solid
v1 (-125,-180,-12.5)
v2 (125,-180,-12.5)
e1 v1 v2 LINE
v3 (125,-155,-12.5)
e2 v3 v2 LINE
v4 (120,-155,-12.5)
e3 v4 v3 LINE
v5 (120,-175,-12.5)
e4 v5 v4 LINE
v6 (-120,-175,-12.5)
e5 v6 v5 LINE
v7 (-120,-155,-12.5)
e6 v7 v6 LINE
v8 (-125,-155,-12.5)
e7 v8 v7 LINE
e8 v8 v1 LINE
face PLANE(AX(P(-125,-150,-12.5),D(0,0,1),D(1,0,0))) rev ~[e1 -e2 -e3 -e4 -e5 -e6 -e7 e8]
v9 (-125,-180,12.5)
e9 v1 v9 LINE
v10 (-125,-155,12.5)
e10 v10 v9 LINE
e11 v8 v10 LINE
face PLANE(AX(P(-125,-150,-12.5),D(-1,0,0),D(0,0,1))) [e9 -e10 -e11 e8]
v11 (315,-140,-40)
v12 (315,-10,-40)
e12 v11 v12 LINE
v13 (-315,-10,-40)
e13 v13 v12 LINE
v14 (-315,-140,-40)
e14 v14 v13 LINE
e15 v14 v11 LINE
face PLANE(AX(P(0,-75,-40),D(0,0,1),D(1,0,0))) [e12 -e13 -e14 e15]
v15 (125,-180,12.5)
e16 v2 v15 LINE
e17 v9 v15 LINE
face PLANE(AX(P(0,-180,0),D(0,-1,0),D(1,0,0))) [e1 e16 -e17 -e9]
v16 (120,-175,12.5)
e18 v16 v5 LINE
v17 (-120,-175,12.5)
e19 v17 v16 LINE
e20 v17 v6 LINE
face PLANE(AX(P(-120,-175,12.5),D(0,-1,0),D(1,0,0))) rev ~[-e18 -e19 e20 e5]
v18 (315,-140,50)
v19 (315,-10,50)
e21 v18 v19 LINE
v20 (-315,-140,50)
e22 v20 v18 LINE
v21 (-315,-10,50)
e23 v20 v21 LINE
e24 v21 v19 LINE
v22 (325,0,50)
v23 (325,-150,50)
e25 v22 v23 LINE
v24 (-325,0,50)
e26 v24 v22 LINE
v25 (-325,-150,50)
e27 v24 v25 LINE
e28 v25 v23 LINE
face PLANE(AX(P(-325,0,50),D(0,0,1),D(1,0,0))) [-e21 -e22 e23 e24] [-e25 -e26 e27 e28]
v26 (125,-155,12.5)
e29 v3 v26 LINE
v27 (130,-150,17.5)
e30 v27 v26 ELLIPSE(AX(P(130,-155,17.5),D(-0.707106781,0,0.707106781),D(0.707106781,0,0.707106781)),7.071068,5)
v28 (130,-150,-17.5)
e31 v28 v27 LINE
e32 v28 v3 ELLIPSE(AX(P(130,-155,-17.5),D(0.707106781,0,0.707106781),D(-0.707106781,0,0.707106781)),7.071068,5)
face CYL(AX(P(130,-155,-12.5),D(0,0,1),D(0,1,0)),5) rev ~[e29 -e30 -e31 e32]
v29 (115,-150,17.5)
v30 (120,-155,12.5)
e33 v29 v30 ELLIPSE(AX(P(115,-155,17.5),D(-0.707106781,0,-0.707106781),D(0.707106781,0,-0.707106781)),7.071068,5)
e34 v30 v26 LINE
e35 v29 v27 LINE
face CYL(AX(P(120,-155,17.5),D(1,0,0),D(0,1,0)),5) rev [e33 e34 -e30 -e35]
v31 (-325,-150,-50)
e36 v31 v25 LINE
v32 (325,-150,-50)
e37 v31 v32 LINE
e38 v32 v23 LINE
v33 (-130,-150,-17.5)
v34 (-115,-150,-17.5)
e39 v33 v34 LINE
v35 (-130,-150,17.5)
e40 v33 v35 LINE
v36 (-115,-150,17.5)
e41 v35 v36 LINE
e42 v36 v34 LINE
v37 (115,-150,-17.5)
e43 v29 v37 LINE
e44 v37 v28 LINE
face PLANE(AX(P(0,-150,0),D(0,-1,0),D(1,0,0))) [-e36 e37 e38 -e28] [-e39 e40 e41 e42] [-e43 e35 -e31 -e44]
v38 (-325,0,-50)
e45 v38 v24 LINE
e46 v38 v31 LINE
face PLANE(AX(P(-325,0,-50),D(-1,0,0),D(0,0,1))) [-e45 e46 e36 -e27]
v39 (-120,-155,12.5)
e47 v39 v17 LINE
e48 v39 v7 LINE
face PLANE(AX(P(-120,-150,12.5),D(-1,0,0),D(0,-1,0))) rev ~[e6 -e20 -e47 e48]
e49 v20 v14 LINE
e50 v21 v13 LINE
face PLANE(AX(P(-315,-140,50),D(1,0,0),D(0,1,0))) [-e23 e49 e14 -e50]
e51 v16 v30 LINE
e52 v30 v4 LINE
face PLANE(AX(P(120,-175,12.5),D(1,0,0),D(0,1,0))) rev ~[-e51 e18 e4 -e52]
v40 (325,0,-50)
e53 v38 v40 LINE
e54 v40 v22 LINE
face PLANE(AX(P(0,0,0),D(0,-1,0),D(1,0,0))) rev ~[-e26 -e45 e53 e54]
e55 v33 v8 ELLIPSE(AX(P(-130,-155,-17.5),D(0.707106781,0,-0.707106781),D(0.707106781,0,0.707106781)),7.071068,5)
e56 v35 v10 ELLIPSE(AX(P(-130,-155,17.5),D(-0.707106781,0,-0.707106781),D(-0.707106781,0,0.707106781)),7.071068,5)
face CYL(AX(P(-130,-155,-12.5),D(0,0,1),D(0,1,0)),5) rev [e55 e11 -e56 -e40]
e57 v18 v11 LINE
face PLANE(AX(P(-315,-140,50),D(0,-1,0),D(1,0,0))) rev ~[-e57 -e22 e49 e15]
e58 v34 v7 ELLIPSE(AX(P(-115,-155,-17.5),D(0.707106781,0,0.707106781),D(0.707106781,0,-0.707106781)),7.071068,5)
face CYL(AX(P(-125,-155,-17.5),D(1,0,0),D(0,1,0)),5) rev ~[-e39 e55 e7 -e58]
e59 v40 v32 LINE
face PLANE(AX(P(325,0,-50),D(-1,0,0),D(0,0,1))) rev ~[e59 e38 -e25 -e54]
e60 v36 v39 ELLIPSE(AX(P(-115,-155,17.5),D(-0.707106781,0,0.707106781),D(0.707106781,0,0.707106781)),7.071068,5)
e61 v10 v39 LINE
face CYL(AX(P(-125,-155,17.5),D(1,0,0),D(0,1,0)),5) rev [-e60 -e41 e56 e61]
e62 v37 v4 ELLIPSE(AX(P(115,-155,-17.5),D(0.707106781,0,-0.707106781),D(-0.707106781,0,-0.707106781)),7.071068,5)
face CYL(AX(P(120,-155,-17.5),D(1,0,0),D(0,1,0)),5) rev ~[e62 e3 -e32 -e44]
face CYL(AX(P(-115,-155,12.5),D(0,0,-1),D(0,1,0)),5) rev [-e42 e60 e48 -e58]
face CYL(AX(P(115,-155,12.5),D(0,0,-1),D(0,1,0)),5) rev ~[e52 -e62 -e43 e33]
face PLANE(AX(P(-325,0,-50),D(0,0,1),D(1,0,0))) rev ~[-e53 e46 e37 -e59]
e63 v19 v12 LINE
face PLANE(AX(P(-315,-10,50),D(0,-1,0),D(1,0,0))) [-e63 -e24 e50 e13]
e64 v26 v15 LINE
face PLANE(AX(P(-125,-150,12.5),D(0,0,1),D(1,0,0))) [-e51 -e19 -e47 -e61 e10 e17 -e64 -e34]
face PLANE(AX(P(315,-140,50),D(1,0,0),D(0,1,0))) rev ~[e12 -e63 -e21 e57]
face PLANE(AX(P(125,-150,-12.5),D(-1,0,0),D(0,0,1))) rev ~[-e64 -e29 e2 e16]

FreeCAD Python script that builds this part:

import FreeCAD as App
import Part
import Sketcher


def edges_at(feature, points):
    """Names of the edges that pass closest to the given points."""
    edges = feature.Shape.Edges
    near = lambda p: min(range(len(edges)), key=lambda i: edges[i].distToShape(Part.Vertex(*p))[0])
    return sorted({f"Edge{near(p) + 1}" for p in points})

doc = App.newDocument("Part")
body = doc.addObject("PartDesign::Body", "Body")

sketch1 = body.newObject("Sketcher::SketchObject", "Sketch")
sketch1.AttachmentSupport = (doc.getObject("XZ_Plane"), [""])
sketch1.MapMode = "FlatFace"
sketch1.addGeometry([
    Part.LineSegment(App.Vector(-325, 50, 0), App.Vector(-325, -50, 0)),
    Part.LineSegment(App.Vector(-325, -50, 0), App.Vector(325, -50, 0)),
    Part.LineSegment(App.Vector(325, -50, 0), App.Vector(325, 50, 0)),
    Part.LineSegment(App.Vector(325, 50, 0), App.Vector(-325, 50, 0)),
], False)
sketch1.addConstraint([
    Sketcher.Constraint("Coincident", 0, 2, 1, 1),
    Sketcher.Constraint("Coincident", 1, 2, 2, 1),
    Sketcher.Constraint("Coincident", 2, 2, 3, 1),
    Sketcher.Constraint("Coincident", 3, 2, 0, 1),
    Sketcher.Constraint("Vertical", 0),
    Sketcher.Constraint("Horizontal", 1),
    Sketcher.Constraint("Vertical", 2),
    Sketcher.Constraint("Horizontal", 3),
    Sketcher.Constraint("Symmetric", 0, 2, 2, 2, -1, 1),
    Sketcher.Constraint("DistanceX", 1, 1, 1, 2, 650.0),
    Sketcher.Constraint("DistanceY", 0, 2, 0, 1, 100.0),
])
pad1 = body.newObject("PartDesign::Pad", "Pad")
pad1.Profile = sketch1
pad1.Length = 150

sketch2 = body.newObject("Sketcher::SketchObject", "Sketch001")
sketch2.AttachmentSupport = (doc.getObject("XZ_Plane"), [""])
sketch2.MapMode = "FlatFace"
sketch2.AttachmentOffset = App.Placement(App.Vector(0, 0, 150), App.Rotation())
sketch2.addGeometry([
    Part.LineSegment(App.Vector(-125, 12, 0), App.Vector(-125, -12, 0)),
    Part.LineSegment(App.Vector(-125, -12, 0), App.Vector(125, -12, 0)),
    Part.LineSegment(App.Vector(125, -12, 0), App.Vector(125, 12, 0)),
    Part.LineSegment(App.Vector(125, 12, 0), App.Vector(-125, 12, 0)),
], False)
sketch2.addConstraint([
    Sketcher.Constraint("Coincident", 0, 2, 1, 1),
    Sketcher.Constraint("Coincident", 1, 2, 2, 1),
    Sketcher.Constraint("Coincident", 2, 2, 3, 1),
    Sketcher.Constraint("Coincident", 3, 2, 0, 1),
    Sketcher.Constraint("Vertical", 0),
    Sketcher.Constraint("Horizontal", 1),
    Sketcher.Constraint("Vertical", 2),
    Sketcher.Constraint("Horizontal", 3),
    Sketcher.Constraint("Symmetric", 0, 2, 2, 2, -1, 1),
    Sketcher.Constraint("DistanceX", 1, 1, 1, 2, 250.0),
    Sketcher.Constraint("DistanceY", 0, 2, 0, 1, 25.0),
])
pad2 = body.newObject("PartDesign::Pad", "Pad001")
pad2.Profile = sketch2
pad2.Length = 30

sketch3 = body.newObject("Sketcher::SketchObject", "Sketch002")
sketch3.AttachmentSupport = (doc.getObject("XY_Plane"), [""])
sketch3.MapMode = "FlatFace"
sketch3.AttachmentOffset = App.Placement(App.Vector(0, 0, 12.5), App.Rotation())
sketch3.addGeometry([
    Part.LineSegment(App.Vector(-120, -175, 0), App.Vector(120, -175, 0)),
    Part.LineSegment(App.Vector(120, -175, 0), App.Vector(120, -150, 0)),
    Part.LineSegment(App.Vector(120, -150, 0), App.Vector(-120, -150, 0)),
    Part.LineSegment(App.Vector(-120, -150, 0), App.Vector(-120, -175, 0)),
], False)
sketch3.addConstraint([
    Sketcher.Constraint("Coincident", 0, 2, 1, 1),
    Sketcher.Constraint("Coincident", 1, 2, 2, 1),
    Sketcher.Constraint("Coincident", 2, 2, 3, 1),
    Sketcher.Constraint("Coincident", 3, 2, 0, 1),
    Sketcher.Constraint("Horizontal", 0),
    Sketcher.Constraint("Vertical", 1),
    Sketcher.Constraint("Horizontal", 2),
    Sketcher.Constraint("Vertical", 3),
    Sketcher.Constraint("DistanceX", 0, 1, 0, 2, 240.0),
    Sketcher.Constraint("DistanceY", 1, 1, 1, 2, 25.0),
    Sketcher.Constraint("DistanceX", -1, 1, 0, 2, 120.0),
    Sketcher.Constraint("DistanceY", 0, 2, -1, 1, 175.0),
])
pocket1 = body.newObject("PartDesign::Pocket", "Pocket")
pocket1.Profile = sketch3
pocket1.Length = 25
doc.recompute()

fillet = body.newObject("PartDesign::Fillet", "Fillet")
fillet.Base = (pocket1, edges_at(pocket1, [
    (125, -150, 0),
    (-125, -150, 0),
    (-122.5, -150, 12.5),
    (-122.5, -150, -12.5),
    (-120, -150, 0),
    (120, -150, 0),
    (122.5, -150, -12.5),
    (122.5, -150, 12.5),
]))
fillet.Radius = 5

sketch4 = body.newObject("Sketcher::SketchObject", "Sketch003")
sketch4.AttachmentSupport = (doc.getObject("XY_Plane"), [""])
sketch4.MapMode = "FlatFace"
sketch4.AttachmentOffset = App.Placement(App.Vector(0, 0, 50), App.Rotation())
sketch4.addGeometry([
    Part.LineSegment(App.Vector(-315, -10, 0), App.Vector(-315, -140, 0)),
    Part.LineSegment(App.Vector(-315, -140, 0), App.Vector(315, -140, 0)),
    Part.LineSegment(App.Vector(315, -140, 0), App.Vector(315, -10, 0)),
    Part.LineSegment(App.Vector(315, -10, 0), App.Vector(-315, -10, 0)),
], False)
sketch4.addConstraint([
    Sketcher.Constraint("Coincident", 0, 2, 1, 1),
    Sketcher.Constraint("Coincident", 1, 2, 2, 1),
    Sketcher.Constraint("Coincident", 2, 2, 3, 1),
    Sketcher.Constraint("Coincident", 3, 2, 0, 1),
    Sketcher.Constraint("Vertical", 0),
    Sketcher.Constraint("Horizontal", 1),
    Sketcher.Constraint("Vertical", 2),
    Sketcher.Constraint("Horizontal", 3),
    Sketcher.Constraint("DistanceX", 1, 1, 1, 2, 630.0),
    Sketcher.Constraint("DistanceY", 0, 2, 0, 1, 130.0),
    Sketcher.Constraint("DistanceX", 0, 2, -1, 1, 315.0),
    Sketcher.Constraint("DistanceY", 0, 2, -1, 1, 140.0),
])
pocket2 = body.newObject("PartDesign::Pocket", "Pocket001")
pocket2.Profile = sketch4
pocket2.Length = 90

doc.recompute()
